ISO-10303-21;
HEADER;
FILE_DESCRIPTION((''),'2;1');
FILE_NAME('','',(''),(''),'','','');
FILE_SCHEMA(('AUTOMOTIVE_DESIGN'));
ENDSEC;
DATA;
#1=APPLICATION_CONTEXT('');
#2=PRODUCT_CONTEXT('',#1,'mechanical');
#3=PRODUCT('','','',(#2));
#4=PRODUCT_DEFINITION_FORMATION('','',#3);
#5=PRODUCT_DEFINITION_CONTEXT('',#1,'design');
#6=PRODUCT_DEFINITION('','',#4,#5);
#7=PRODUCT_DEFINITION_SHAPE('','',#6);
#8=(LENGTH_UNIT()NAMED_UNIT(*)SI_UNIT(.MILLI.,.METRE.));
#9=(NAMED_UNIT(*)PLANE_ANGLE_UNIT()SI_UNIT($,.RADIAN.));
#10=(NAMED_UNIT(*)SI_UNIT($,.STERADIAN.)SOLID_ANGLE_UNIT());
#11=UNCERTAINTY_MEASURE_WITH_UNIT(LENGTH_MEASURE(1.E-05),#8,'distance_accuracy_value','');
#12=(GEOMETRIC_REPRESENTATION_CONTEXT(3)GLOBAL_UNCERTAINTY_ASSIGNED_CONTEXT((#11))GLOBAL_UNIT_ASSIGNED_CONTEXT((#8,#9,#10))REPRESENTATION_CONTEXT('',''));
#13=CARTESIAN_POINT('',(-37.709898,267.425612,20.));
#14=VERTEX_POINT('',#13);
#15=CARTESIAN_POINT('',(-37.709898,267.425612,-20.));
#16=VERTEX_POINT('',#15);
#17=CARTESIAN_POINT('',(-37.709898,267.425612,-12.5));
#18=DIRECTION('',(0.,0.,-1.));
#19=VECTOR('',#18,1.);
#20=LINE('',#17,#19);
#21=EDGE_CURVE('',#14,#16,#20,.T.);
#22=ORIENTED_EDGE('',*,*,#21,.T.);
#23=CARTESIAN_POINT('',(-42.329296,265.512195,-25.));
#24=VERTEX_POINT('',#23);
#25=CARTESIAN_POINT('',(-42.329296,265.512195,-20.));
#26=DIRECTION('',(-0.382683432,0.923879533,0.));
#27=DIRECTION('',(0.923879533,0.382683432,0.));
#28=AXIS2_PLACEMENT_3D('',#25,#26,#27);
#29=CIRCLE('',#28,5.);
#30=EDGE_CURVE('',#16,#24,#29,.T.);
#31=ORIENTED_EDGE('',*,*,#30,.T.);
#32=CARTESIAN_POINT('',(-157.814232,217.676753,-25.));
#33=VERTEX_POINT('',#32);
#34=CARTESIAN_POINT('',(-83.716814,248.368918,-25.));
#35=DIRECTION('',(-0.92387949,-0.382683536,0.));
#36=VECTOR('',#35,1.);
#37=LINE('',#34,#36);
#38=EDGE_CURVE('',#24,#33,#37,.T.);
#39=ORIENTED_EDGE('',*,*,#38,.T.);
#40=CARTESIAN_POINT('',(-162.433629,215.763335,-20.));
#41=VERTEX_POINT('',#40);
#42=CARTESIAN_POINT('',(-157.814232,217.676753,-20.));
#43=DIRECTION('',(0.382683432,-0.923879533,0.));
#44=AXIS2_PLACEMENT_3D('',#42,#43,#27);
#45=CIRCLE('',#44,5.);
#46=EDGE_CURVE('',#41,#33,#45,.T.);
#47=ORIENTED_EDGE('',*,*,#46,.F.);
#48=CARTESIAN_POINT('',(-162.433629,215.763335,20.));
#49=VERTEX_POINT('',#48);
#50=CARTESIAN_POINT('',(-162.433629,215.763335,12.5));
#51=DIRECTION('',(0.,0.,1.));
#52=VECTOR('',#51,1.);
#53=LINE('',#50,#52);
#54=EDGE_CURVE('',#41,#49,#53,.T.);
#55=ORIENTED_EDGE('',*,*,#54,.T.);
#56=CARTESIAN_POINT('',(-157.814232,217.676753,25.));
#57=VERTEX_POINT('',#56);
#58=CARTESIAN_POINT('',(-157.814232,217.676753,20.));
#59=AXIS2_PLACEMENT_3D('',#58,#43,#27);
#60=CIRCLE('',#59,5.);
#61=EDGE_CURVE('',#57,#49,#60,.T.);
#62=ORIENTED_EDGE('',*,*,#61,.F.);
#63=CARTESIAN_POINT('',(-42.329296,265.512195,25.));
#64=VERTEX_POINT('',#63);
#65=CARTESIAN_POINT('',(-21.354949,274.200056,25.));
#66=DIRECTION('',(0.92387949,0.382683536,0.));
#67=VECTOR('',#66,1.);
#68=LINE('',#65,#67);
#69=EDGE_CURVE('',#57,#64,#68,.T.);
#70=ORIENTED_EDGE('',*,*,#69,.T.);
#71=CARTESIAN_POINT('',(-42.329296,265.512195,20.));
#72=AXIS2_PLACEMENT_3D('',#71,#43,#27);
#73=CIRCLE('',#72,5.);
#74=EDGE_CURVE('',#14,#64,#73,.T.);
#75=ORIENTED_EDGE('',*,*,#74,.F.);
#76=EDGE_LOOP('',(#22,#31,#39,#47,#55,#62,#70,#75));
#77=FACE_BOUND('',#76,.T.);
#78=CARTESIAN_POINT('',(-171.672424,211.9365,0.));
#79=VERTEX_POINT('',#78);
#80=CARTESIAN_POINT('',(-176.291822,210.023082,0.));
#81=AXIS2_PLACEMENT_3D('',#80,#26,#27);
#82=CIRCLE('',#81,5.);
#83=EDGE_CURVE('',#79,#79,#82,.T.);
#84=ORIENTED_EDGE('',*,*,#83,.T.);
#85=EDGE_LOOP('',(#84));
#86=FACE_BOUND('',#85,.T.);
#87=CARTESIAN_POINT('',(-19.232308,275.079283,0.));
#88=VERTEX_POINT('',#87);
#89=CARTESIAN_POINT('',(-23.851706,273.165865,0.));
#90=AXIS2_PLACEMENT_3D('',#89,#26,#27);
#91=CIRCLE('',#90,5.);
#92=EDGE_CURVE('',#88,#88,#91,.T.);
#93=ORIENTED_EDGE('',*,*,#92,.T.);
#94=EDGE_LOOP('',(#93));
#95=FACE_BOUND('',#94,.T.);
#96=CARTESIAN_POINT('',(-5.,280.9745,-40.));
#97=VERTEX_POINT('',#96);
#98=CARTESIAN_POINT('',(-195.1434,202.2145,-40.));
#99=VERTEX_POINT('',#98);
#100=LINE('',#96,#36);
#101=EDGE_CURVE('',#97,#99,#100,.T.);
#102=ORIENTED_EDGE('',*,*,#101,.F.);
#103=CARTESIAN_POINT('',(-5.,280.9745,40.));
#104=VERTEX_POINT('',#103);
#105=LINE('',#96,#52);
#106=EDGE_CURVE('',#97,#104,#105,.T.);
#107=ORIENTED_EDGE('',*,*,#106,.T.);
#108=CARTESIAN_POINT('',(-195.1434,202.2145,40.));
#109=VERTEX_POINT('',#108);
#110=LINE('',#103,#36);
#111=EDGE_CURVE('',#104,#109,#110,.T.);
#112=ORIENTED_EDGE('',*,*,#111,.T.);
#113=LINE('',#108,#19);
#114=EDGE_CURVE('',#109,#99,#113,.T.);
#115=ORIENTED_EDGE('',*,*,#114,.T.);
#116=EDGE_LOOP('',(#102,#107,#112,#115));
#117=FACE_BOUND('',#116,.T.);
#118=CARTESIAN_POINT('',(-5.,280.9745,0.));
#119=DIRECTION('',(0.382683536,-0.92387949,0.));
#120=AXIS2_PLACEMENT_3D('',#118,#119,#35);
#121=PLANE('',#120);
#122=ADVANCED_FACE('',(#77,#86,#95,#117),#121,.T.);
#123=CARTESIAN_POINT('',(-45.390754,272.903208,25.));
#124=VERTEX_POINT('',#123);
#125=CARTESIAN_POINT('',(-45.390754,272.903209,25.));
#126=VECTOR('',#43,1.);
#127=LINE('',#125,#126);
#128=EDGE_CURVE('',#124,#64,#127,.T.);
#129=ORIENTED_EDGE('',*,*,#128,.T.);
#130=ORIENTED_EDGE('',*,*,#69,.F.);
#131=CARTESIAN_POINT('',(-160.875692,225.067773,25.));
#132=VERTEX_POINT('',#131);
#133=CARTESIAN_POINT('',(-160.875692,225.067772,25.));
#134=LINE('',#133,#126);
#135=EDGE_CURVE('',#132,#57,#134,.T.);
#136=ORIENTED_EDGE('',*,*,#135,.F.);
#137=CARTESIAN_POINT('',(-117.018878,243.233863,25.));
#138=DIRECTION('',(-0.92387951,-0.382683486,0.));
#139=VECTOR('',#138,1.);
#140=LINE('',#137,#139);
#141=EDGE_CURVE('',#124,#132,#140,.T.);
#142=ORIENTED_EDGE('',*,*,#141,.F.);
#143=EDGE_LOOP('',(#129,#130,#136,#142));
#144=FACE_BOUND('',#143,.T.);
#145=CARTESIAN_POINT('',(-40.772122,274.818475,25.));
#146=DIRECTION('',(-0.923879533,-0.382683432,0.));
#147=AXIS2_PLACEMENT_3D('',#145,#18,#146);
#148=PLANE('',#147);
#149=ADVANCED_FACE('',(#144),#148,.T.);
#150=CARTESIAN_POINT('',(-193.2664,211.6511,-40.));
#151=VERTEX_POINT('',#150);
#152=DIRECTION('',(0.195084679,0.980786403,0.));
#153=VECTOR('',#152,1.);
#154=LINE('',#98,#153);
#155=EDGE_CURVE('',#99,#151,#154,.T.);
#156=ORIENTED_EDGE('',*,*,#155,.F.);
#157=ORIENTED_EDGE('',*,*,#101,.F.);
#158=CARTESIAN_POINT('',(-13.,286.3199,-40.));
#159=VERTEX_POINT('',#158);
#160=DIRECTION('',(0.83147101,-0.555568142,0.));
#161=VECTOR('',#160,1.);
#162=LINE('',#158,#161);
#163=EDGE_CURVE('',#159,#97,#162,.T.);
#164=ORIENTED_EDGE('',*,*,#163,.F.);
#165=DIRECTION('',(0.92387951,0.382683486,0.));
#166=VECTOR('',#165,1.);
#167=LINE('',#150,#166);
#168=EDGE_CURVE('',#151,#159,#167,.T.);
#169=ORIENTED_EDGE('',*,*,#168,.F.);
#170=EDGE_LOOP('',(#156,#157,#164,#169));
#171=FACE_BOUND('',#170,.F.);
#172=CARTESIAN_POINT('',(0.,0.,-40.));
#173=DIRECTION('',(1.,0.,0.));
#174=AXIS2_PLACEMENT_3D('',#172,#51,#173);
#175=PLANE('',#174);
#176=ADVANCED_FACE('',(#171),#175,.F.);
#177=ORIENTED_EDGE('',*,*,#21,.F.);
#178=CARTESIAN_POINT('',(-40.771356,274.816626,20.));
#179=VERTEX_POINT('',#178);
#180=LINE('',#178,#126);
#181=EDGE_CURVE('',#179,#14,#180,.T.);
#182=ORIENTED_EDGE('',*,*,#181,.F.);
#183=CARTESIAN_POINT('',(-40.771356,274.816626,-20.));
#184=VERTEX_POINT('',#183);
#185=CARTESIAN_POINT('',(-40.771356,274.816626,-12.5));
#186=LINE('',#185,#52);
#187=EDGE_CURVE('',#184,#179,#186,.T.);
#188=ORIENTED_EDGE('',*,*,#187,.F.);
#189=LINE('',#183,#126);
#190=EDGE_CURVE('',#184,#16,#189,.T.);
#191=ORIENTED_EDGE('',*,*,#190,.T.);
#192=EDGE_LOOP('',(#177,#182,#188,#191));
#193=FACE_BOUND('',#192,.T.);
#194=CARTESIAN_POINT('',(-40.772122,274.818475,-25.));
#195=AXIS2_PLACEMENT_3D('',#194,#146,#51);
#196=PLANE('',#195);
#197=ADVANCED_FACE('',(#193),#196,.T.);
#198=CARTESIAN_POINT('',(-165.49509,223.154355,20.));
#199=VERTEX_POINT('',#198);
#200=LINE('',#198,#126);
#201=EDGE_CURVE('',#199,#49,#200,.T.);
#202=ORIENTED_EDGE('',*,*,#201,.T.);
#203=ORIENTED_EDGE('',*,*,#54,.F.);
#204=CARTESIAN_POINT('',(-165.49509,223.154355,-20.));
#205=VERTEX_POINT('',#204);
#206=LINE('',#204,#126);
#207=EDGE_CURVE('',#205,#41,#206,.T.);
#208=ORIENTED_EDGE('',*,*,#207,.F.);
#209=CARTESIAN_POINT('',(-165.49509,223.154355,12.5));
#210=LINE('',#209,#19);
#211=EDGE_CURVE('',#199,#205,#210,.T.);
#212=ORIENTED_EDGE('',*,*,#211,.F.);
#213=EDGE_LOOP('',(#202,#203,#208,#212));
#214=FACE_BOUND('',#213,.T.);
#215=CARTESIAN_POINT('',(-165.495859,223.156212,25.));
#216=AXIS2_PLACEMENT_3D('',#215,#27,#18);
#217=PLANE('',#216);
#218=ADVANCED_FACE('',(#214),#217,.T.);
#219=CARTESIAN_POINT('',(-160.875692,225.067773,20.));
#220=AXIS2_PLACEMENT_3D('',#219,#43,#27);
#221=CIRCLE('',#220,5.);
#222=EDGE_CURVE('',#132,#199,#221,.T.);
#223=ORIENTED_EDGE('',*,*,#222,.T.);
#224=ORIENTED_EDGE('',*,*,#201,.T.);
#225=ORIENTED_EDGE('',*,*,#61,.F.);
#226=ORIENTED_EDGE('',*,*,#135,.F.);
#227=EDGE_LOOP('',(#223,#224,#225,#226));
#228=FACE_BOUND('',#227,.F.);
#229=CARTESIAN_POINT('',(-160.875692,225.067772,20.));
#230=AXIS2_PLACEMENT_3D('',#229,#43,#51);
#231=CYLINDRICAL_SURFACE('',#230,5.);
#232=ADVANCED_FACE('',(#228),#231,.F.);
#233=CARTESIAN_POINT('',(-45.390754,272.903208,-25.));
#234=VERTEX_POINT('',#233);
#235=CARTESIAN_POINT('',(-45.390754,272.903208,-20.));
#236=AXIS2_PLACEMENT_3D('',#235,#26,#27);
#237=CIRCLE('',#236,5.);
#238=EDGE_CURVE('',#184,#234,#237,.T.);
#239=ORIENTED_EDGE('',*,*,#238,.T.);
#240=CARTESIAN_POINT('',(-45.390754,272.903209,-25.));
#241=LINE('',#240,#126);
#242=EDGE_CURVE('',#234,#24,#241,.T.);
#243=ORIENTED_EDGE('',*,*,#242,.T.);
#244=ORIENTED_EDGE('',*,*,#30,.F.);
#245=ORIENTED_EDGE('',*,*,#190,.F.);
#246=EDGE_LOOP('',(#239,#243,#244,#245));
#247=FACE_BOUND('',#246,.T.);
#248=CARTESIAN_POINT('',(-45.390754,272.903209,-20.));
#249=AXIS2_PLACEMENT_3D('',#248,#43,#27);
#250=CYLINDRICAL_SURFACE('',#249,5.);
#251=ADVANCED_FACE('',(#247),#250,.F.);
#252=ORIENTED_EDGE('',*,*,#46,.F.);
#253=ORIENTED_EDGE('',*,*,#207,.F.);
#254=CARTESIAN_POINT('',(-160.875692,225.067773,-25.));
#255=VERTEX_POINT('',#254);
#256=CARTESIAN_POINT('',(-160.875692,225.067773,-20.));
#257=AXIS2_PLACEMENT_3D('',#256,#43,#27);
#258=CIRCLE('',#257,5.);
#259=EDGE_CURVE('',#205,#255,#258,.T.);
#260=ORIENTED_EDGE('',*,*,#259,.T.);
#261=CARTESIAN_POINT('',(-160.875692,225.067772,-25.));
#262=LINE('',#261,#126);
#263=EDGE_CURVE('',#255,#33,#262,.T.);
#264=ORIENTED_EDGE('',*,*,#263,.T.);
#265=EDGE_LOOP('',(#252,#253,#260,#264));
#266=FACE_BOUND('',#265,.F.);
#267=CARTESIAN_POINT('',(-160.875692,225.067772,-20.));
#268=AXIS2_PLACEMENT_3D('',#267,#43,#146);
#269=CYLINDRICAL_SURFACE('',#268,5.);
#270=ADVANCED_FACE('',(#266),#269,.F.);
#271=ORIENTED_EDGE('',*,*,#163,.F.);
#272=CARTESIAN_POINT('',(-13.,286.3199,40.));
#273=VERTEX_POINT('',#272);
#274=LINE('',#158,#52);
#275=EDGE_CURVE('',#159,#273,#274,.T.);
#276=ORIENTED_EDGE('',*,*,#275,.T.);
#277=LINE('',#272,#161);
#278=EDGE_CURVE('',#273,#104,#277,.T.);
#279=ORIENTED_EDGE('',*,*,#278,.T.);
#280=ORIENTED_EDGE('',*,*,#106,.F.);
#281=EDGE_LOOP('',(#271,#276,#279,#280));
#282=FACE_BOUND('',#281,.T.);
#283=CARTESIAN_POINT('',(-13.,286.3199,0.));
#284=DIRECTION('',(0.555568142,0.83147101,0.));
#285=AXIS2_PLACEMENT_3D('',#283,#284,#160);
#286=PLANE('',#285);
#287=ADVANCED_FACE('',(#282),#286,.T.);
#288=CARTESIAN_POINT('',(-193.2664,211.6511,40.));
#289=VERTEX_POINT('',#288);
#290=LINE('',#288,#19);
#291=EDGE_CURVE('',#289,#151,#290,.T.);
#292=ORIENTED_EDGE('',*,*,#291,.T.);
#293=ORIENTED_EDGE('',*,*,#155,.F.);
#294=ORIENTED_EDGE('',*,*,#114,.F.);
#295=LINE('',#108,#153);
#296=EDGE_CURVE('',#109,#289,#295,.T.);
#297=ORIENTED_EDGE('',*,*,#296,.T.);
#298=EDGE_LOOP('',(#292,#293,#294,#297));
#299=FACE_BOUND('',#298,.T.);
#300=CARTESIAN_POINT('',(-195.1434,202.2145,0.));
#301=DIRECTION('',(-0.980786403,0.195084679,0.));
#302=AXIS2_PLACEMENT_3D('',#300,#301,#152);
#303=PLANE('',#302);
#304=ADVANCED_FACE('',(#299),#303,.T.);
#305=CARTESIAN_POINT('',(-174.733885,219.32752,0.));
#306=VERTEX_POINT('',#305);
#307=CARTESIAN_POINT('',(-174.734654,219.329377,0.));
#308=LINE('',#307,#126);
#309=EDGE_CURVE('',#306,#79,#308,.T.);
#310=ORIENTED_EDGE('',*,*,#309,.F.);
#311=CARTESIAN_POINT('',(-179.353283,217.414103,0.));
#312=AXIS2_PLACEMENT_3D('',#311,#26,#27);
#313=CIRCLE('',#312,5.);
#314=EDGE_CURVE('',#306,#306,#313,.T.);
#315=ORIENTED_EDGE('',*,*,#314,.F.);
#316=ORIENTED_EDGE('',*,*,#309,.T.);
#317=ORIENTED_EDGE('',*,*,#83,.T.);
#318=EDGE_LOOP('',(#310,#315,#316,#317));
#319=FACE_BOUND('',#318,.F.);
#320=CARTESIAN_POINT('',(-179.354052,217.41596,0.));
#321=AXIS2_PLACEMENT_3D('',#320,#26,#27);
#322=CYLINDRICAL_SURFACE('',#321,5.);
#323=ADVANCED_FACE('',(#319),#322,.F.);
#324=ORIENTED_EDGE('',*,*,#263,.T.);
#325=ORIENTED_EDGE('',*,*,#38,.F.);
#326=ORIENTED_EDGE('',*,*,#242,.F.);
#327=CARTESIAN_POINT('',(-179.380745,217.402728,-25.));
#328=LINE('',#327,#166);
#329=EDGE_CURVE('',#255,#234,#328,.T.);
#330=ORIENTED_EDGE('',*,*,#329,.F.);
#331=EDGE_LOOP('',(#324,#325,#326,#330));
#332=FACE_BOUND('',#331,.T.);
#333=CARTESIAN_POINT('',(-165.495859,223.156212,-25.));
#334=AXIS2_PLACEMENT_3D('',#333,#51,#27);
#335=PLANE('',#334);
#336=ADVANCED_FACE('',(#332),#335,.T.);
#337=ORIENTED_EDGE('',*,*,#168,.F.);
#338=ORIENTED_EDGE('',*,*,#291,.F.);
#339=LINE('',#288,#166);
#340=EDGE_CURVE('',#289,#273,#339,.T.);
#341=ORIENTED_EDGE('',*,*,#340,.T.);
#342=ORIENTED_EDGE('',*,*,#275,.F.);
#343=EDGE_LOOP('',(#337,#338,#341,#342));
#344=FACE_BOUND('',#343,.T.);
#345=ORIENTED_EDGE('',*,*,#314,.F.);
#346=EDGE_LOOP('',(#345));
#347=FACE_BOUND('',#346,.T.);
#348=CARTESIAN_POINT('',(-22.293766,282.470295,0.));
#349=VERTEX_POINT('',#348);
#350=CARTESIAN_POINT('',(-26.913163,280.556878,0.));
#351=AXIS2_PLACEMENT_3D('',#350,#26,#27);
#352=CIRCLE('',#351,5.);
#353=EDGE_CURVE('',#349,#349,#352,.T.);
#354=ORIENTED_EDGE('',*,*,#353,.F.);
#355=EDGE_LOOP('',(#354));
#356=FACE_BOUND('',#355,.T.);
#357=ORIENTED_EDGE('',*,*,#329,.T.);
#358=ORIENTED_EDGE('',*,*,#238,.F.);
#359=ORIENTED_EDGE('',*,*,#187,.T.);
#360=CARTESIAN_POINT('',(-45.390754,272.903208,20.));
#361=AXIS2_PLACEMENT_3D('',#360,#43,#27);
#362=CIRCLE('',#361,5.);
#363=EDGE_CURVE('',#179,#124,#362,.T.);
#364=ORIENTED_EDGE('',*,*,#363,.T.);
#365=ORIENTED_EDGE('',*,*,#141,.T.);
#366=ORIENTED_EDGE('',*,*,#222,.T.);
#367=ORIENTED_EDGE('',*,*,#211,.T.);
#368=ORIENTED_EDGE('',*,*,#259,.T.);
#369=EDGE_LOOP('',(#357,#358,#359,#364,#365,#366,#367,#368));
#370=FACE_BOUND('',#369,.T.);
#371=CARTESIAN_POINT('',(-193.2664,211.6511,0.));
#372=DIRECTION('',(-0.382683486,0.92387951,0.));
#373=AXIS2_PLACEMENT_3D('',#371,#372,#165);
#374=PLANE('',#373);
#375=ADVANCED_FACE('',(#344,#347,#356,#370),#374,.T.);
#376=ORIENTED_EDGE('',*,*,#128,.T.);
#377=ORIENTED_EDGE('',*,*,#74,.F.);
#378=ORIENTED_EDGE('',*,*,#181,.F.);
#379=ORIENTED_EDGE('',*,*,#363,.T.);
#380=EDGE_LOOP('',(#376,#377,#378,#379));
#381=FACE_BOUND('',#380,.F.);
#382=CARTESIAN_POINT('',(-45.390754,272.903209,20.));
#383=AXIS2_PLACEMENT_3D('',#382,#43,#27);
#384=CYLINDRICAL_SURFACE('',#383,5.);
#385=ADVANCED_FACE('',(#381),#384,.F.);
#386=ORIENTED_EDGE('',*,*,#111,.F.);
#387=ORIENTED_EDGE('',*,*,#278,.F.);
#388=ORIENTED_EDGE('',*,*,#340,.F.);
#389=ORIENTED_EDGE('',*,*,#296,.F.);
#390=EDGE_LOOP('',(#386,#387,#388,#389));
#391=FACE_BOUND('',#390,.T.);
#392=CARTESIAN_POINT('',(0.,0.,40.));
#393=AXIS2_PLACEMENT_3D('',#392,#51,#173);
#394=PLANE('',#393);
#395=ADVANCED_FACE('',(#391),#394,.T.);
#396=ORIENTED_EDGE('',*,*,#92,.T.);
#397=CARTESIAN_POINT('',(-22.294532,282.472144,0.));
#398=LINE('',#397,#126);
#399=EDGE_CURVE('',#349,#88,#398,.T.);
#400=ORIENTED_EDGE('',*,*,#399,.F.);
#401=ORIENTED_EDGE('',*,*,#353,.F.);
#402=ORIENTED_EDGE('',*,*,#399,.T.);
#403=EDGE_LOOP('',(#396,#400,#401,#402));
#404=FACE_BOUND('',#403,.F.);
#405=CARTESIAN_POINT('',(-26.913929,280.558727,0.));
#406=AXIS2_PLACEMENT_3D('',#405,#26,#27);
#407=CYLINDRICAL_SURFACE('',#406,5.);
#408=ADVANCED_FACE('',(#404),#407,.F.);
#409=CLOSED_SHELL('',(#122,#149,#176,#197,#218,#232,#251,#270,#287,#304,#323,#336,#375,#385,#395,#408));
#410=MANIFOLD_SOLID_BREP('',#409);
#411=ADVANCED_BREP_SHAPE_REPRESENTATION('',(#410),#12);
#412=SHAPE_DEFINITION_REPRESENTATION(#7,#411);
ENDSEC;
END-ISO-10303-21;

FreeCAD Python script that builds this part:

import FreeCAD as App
import Part
import Sketcher
Q = App.Units.Quantity


def edges_at(feature, points):
    """Names of the edges that pass closest to the given points."""
    edges = feature.Shape.Edges
    near = lambda p: min(range(len(edges)), key=lambda i: edges[i].distToShape(Part.Vertex(*p))[0])
    return sorted({f"Edge{near(p) + 1}" for p in points})

doc = App.newDocument("Part")
params = doc.addObject("Spreadsheet::Sheet", "Params")
for row, (alias, value) in enumerate([
    ("pad1_length", "80 mm"),
    ("sketch2_diameter", "10 mm"),
    ("sketch2_width", "135 mm"),
    ("sketch2_height", "50 mm"),
    ("pocket1_length", "8 mm"),
    ("fillet_radius", "5 mm"),
], start=1):
    params.set(f"A{row}", alias)
    params.set(f"B{row}", "=" + value)
    params.setAlias(f"B{row}", alias)

body = doc.addObject("PartDesign::Body", "Body")

# Sketch on XY plane
sketch1 = body.newObject("Sketcher::SketchObject", "Sketch")
sketch1.AttachmentSupport = (doc.getObject("XY_Plane"), [""])
sketch1.MapMode = "FlatFace"
sketch1.addGeometry([
    Part.LineSegment(App.Vector(-195, 202, 0), App.Vector(-5, 281, 0)),
    Part.LineSegment(App.Vector(-5, 281, 0), App.Vector(-13, 286, 0)),
    Part.LineSegment(App.Vector(-13, 286, 0), App.Vector(-193, 212, 0)),
    Part.LineSegment(App.Vector(-193, 212, 0), App.Vector(-195, 202, 0)),
], False)
sketch1.addConstraint([
    Sketcher.Constraint("Coincident", 0, 2, 1, 1),
    Sketcher.Constraint("Coincident", 1, 2, 2, 1),
    Sketcher.Constraint("Coincident", 2, 2, 3, 1),
    Sketcher.Constraint("Coincident", 3, 2, 0, 1),
    Sketcher.Constraint("Parallel", 0, 2),
    Sketcher.Constraint("Equal", 1, 3),
    Sketcher.Constraint("DistanceX", 0, 2, -1, 1, Q("5 mm")),
    Sketcher.Constraint("DistanceX", 1, 2, 0, 2, Q("8 mm")),
    Sketcher.Constraint("Angle", 0, Q("22.5 deg")),
    Sketcher.Constraint("Angle", 1, Q("146.2501 deg")),
    Sketcher.Constraint("DistanceY", -1, 1, 1, 2, Q("286.32 mm")),
    Sketcher.Constraint("DistanceY", 3, 2, 0, 2, Q("78.76 mm")),
])
pad1 = body.newObject("PartDesign::Pad", "Pad")
pad1.Profile = sketch1
pad1.setExpression("Length", "Params.pad1_length")
pad1.Midplane = True

# Sketch on an angled plane
sketch2 = body.newObject("Sketcher::SketchObject", "Sketch001")
sketch2.Placement = App.Placement(App.Vector(-13, 286.3199, -40), App.Rotation(App.Vector(0.923879533, 0.382683432, 0), App.Vector(0, 0, -1.000000001), App.Vector(-0.382683432, 0.923879533, 0), "ZXY"))
sketch2.addGeometry([
    Part.LineSegment(App.Vector(-30, -15, 0), App.Vector(-165, -15, 0)),  # 0
    Part.LineSegment(App.Vector(-165, -15, 0), App.Vector(-165, -65, 0)),  # 1
    Part.LineSegment(App.Vector(-165, -65, 0), App.Vector(-30, -65, 0)),  # 2
    Part.LineSegment(App.Vector(-30, -65, 0), App.Vector(-30, -15, 0)),  # 3
    Part.Circle(App.Vector(-15, -40, 0), App.Vector(0, 0, 1), 5),  # 4
    Part.Circle(App.Vector(-180, -40, 0), App.Vector(0, 0, 1), 5),  # 5
], False)
sketch2.addConstraint([
    Sketcher.Constraint("Coincident", 0, 2, 1, 1),
    Sketcher.Constraint("Coincident", 1, 2, 2, 1),
    Sketcher.Constraint("Coincident", 2, 2, 3, 1),
    Sketcher.Constraint("Coincident", 3, 2, 0, 1),
    Sketcher.Constraint("Horizontal", 0),
    Sketcher.Constraint("Vertical", 1),
    Sketcher.Constraint("Horizontal", 2),
    Sketcher.Constraint("Vertical", 3),
    Sketcher.Constraint("Equal", 4, 5),
    Sketcher.Constraint("Horizontal", 4, 3, 5, 3),
    Sketcher.Constraint("Diameter", 4, Q("10 mm")),
    Sketcher.Constraint("DistanceX", 0, 2, 0, 1, Q("135 mm")),
    Sketcher.Constraint("DistanceY", 1, 2, 1, 1, Q("50 mm")),
    Sketcher.Constraint("DistanceY", 0, 2, -1, 1, Q("15 mm")),
    Sketcher.Constraint("DistanceX", 5, 3, 0, 2, Q("15 mm")),
    Sketcher.Constraint("DistanceX", 2, 2, 4, 3, Q("15 mm")),
    Sketcher.Constraint("DistanceY", 4, 3, -1, 1, Q("40 mm")),
    Sketcher.Constraint("DistanceX", 4, 3, -1, 1, Q("15.0595 mm")),
])
sketch2.setExpression("Constraints[10]", "Params.sketch2_diameter")
sketch2.setExpression("Constraints[11]", "Params.sketch2_width")
sketch2.setExpression("Constraints[12]", "Params.sketch2_height")
pocket1 = body.newObject("PartDesign::Pocket", "Pocket")
pocket1.Profile = sketch2
pocket1.setExpression("Length", "Params.pocket1_length")
doc.recompute()

fillet = body.newObject("PartDesign::Fillet", "Fillet")
fillet.Base = (pocket1, edges_at(pocket1, [
    (-163.964, 219.459, -25),
    (-39.241, 271.121, -25),
    (-39.241, 271.121, 25),
    (-163.964, 219.459, 25),
]))
fillet.setExpression("Radius", "Params.fillet_radius")

doc.recompute()
